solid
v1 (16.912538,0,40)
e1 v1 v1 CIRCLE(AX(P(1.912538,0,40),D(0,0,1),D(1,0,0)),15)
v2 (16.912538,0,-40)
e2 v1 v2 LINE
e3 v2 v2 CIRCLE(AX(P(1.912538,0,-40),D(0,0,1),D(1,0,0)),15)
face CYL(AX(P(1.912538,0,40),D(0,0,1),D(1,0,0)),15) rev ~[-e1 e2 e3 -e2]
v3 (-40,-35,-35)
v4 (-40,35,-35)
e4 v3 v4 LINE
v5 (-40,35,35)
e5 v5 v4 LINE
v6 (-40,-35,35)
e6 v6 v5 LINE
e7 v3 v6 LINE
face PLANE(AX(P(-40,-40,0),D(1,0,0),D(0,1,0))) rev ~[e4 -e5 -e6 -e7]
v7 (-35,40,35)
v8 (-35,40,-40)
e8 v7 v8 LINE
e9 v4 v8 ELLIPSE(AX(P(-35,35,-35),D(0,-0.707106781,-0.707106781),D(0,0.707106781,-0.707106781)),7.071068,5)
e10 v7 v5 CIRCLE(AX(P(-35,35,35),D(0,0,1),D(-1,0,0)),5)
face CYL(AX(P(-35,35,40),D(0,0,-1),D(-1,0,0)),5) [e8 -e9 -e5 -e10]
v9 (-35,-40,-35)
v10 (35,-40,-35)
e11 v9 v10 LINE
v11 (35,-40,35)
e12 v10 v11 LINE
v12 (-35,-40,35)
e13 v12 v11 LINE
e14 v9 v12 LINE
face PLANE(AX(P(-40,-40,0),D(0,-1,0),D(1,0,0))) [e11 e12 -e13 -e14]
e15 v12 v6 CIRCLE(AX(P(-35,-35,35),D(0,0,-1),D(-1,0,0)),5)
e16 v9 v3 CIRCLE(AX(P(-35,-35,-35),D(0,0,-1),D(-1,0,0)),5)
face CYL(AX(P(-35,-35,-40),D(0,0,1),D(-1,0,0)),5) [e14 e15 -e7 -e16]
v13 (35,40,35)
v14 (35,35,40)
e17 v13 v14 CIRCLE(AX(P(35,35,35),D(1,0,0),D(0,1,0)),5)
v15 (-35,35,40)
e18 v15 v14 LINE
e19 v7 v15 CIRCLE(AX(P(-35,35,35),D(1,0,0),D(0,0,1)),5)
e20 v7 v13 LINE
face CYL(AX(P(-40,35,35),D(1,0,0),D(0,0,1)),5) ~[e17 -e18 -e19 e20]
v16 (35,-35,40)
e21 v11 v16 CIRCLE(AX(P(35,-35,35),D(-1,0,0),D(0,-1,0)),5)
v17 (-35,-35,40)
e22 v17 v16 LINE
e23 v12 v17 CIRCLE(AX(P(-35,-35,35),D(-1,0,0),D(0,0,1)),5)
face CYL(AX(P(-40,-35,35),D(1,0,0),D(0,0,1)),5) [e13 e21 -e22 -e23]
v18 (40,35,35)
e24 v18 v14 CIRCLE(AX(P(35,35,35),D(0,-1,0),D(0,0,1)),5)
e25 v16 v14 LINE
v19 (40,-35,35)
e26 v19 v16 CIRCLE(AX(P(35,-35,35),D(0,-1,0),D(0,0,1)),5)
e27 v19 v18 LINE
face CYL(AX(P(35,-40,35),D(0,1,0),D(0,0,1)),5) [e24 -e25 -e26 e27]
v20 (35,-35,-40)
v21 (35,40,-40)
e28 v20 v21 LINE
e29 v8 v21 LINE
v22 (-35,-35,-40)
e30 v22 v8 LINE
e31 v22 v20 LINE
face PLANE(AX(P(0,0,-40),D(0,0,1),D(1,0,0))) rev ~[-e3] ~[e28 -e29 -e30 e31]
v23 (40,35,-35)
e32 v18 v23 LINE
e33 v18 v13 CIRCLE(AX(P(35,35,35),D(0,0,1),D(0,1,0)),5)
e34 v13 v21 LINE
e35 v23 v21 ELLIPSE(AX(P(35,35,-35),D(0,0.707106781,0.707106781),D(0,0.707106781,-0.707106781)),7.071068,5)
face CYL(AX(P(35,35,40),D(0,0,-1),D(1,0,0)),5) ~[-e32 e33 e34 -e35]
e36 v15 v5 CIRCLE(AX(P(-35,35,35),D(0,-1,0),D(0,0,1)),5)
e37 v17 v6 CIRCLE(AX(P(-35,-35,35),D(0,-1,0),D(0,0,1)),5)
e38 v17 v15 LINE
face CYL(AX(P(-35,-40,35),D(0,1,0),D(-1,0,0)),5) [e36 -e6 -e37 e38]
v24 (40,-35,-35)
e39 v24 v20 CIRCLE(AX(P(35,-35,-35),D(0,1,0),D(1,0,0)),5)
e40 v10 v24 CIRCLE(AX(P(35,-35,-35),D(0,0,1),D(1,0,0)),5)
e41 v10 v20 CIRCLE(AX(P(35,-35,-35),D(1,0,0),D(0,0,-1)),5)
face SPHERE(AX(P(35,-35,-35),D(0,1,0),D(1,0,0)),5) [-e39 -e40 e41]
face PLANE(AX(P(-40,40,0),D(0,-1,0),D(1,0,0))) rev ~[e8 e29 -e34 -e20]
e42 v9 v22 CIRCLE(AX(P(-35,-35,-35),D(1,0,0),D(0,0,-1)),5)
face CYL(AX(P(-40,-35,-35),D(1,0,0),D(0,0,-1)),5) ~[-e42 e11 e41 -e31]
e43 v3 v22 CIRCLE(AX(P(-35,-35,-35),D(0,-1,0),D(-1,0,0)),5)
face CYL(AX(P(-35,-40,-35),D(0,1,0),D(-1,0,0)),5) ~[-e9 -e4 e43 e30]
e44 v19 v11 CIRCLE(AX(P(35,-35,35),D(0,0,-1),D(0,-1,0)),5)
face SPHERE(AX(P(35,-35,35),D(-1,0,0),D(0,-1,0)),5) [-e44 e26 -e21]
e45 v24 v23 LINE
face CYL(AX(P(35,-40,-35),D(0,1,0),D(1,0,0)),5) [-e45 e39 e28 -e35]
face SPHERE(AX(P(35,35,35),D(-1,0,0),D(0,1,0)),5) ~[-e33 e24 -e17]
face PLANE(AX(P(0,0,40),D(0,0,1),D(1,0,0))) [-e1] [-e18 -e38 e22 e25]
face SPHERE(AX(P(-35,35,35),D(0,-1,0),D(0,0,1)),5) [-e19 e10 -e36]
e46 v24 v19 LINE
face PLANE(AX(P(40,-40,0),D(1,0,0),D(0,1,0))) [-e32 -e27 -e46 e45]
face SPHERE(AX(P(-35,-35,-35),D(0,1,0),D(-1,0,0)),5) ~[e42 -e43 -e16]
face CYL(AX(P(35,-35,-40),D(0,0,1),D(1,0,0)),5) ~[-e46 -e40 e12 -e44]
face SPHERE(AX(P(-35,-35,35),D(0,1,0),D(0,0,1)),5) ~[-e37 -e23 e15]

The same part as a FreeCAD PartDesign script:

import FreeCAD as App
import Part
import Sketcher

V = App.Vector


def edges_at(feature, points):
    """Names of the edges that pass closest to the given points."""
    edges = feature.Shape.Edges
    near = lambda p: min(range(len(edges)), key=lambda i: edges[i].distToShape(Part.Vertex(*p))[0])
    return sorted({f"Edge{near(p) + 1}" for p in points})

doc = App.newDocument("Part")
params = doc.addObject("Spreadsheet::Sheet", "Params")
for row, (alias, value) in enumerate([
    ("sketch1_width", "80 mm"),
    ("pad1_length", "80 mm"),
    ("fillet_radius", "5 mm"),
    ("sketch2_diameter", "30 mm"),
], start=1):
    params.set(f"A{row}", alias)
    params.set(f"B{row}", "=" + value)
    params.setAlias(f"B{row}", alias)

body = doc.addObject("PartDesign::Body", "Body")

# Sketch on XY plane
sketch1 = doc.addObject("Sketcher::SketchObject", "Sketch")
body.addObject(sketch1)
sketch1.AttachmentSupport = (doc.XY_Plane, [""])
sketch1.MapMode = "FlatFace"
sketch1.addGeometry(Part.LineSegment(V(-40, 40, 0), V(-40, -40, 0)), False)
sketch1.addGeometry(Part.LineSegment(V(-40, -40, 0), V(40, -40, 0)), False)
sketch1.addGeometry(Part.LineSegment(V(40, -40, 0), V(40, 40, 0)), False)
sketch1.addGeometry(Part.LineSegment(V(40, 40, 0), V(-40, 40, 0)), False)
sketch1.addConstraint(Sketcher.Constraint("Coincident", 0, 2, 1, 1))
sketch1.addConstraint(Sketcher.Constraint("Coincident", 1, 2, 2, 1))
sketch1.addConstraint(Sketcher.Constraint("Coincident", 2, 2, 3, 1))
sketch1.addConstraint(Sketcher.Constraint("Coincident", 3, 2, 0, 1))
sketch1.addConstraint(Sketcher.Constraint("Vertical", 0))
sketch1.addConstraint(Sketcher.Constraint("Horizontal", 1))
sketch1.addConstraint(Sketcher.Constraint("Vertical", 2))
sketch1.addConstraint(Sketcher.Constraint("Horizontal", 3))
sketch1.addConstraint(Sketcher.Constraint("Symmetric", 0, 2, 2, 2, -1, 1))
sketch1.addConstraint(Sketcher.Constraint("Equal", 3, 0))
sketch1.addConstraint(Sketcher.Constraint("DistanceX", 1, 1, 1, 2, 80.0))
sketch1.setExpression("Constraints[10]", "Params.sketch1_width")
pad1 = doc.addObject("PartDesign::Pad", "Pad")
body.addObject(pad1)
pad1.Profile = sketch1
pad1.setExpression("Length", "Params.pad1_length")
pad1.Midplane = True
doc.recompute()

fillet = doc.addObject("PartDesign::Fillet", "Fillet")
body.addObject(fillet)
fillet.Base = (pad1, edges_at(pad1, [
    (-40, 0, 40),
    (-40, 0, -40),
    (0, 40, 40),
    (0, -40, 40),
    (-40, -40, 0),
    (-40, 40, 0),
    (40, 0, -40),
    (40, 40, 0),
    (40, -40, 0),
    (0, -40, -40),
    (40, 0, 40),
]))
fillet.setExpression("Radius", "Params.fillet_radius")

# Sketch on XY plane
sketch2 = doc.addObject("Sketcher::SketchObject", "Sketch001")
body.addObject(sketch2)
sketch2.AttachmentSupport = (doc.XY_Plane, [""])
sketch2.MapMode = "FlatFace"
sketch2.AttachmentOffset = App.Placement(V(0, 0, 40), App.Rotation())
sketch2.addGeometry(Part.Circle(V(1.912538, 0, 0), V(0, 0, 1), 15), False)
sketch2.addConstraint(Sketcher.Constraint("PointOnObject", 0, 3, -1))
sketch2.addConstraint(Sketcher.Constraint("Diameter", 0, 30.0))
sketch2.addConstraint(Sketcher.Constraint("DistanceX", -1, 1, 0, 3, 1.912538))
sketch2.setExpression("Constraints[1]", "Params.sketch2_diameter")
pocket1 = doc.addObject("PartDesign::Pocket", "Pocket")
body.addObject(pocket1)
pocket1.Profile = sketch2
pocket1.Type = "ThroughAll"

doc.recompute()
